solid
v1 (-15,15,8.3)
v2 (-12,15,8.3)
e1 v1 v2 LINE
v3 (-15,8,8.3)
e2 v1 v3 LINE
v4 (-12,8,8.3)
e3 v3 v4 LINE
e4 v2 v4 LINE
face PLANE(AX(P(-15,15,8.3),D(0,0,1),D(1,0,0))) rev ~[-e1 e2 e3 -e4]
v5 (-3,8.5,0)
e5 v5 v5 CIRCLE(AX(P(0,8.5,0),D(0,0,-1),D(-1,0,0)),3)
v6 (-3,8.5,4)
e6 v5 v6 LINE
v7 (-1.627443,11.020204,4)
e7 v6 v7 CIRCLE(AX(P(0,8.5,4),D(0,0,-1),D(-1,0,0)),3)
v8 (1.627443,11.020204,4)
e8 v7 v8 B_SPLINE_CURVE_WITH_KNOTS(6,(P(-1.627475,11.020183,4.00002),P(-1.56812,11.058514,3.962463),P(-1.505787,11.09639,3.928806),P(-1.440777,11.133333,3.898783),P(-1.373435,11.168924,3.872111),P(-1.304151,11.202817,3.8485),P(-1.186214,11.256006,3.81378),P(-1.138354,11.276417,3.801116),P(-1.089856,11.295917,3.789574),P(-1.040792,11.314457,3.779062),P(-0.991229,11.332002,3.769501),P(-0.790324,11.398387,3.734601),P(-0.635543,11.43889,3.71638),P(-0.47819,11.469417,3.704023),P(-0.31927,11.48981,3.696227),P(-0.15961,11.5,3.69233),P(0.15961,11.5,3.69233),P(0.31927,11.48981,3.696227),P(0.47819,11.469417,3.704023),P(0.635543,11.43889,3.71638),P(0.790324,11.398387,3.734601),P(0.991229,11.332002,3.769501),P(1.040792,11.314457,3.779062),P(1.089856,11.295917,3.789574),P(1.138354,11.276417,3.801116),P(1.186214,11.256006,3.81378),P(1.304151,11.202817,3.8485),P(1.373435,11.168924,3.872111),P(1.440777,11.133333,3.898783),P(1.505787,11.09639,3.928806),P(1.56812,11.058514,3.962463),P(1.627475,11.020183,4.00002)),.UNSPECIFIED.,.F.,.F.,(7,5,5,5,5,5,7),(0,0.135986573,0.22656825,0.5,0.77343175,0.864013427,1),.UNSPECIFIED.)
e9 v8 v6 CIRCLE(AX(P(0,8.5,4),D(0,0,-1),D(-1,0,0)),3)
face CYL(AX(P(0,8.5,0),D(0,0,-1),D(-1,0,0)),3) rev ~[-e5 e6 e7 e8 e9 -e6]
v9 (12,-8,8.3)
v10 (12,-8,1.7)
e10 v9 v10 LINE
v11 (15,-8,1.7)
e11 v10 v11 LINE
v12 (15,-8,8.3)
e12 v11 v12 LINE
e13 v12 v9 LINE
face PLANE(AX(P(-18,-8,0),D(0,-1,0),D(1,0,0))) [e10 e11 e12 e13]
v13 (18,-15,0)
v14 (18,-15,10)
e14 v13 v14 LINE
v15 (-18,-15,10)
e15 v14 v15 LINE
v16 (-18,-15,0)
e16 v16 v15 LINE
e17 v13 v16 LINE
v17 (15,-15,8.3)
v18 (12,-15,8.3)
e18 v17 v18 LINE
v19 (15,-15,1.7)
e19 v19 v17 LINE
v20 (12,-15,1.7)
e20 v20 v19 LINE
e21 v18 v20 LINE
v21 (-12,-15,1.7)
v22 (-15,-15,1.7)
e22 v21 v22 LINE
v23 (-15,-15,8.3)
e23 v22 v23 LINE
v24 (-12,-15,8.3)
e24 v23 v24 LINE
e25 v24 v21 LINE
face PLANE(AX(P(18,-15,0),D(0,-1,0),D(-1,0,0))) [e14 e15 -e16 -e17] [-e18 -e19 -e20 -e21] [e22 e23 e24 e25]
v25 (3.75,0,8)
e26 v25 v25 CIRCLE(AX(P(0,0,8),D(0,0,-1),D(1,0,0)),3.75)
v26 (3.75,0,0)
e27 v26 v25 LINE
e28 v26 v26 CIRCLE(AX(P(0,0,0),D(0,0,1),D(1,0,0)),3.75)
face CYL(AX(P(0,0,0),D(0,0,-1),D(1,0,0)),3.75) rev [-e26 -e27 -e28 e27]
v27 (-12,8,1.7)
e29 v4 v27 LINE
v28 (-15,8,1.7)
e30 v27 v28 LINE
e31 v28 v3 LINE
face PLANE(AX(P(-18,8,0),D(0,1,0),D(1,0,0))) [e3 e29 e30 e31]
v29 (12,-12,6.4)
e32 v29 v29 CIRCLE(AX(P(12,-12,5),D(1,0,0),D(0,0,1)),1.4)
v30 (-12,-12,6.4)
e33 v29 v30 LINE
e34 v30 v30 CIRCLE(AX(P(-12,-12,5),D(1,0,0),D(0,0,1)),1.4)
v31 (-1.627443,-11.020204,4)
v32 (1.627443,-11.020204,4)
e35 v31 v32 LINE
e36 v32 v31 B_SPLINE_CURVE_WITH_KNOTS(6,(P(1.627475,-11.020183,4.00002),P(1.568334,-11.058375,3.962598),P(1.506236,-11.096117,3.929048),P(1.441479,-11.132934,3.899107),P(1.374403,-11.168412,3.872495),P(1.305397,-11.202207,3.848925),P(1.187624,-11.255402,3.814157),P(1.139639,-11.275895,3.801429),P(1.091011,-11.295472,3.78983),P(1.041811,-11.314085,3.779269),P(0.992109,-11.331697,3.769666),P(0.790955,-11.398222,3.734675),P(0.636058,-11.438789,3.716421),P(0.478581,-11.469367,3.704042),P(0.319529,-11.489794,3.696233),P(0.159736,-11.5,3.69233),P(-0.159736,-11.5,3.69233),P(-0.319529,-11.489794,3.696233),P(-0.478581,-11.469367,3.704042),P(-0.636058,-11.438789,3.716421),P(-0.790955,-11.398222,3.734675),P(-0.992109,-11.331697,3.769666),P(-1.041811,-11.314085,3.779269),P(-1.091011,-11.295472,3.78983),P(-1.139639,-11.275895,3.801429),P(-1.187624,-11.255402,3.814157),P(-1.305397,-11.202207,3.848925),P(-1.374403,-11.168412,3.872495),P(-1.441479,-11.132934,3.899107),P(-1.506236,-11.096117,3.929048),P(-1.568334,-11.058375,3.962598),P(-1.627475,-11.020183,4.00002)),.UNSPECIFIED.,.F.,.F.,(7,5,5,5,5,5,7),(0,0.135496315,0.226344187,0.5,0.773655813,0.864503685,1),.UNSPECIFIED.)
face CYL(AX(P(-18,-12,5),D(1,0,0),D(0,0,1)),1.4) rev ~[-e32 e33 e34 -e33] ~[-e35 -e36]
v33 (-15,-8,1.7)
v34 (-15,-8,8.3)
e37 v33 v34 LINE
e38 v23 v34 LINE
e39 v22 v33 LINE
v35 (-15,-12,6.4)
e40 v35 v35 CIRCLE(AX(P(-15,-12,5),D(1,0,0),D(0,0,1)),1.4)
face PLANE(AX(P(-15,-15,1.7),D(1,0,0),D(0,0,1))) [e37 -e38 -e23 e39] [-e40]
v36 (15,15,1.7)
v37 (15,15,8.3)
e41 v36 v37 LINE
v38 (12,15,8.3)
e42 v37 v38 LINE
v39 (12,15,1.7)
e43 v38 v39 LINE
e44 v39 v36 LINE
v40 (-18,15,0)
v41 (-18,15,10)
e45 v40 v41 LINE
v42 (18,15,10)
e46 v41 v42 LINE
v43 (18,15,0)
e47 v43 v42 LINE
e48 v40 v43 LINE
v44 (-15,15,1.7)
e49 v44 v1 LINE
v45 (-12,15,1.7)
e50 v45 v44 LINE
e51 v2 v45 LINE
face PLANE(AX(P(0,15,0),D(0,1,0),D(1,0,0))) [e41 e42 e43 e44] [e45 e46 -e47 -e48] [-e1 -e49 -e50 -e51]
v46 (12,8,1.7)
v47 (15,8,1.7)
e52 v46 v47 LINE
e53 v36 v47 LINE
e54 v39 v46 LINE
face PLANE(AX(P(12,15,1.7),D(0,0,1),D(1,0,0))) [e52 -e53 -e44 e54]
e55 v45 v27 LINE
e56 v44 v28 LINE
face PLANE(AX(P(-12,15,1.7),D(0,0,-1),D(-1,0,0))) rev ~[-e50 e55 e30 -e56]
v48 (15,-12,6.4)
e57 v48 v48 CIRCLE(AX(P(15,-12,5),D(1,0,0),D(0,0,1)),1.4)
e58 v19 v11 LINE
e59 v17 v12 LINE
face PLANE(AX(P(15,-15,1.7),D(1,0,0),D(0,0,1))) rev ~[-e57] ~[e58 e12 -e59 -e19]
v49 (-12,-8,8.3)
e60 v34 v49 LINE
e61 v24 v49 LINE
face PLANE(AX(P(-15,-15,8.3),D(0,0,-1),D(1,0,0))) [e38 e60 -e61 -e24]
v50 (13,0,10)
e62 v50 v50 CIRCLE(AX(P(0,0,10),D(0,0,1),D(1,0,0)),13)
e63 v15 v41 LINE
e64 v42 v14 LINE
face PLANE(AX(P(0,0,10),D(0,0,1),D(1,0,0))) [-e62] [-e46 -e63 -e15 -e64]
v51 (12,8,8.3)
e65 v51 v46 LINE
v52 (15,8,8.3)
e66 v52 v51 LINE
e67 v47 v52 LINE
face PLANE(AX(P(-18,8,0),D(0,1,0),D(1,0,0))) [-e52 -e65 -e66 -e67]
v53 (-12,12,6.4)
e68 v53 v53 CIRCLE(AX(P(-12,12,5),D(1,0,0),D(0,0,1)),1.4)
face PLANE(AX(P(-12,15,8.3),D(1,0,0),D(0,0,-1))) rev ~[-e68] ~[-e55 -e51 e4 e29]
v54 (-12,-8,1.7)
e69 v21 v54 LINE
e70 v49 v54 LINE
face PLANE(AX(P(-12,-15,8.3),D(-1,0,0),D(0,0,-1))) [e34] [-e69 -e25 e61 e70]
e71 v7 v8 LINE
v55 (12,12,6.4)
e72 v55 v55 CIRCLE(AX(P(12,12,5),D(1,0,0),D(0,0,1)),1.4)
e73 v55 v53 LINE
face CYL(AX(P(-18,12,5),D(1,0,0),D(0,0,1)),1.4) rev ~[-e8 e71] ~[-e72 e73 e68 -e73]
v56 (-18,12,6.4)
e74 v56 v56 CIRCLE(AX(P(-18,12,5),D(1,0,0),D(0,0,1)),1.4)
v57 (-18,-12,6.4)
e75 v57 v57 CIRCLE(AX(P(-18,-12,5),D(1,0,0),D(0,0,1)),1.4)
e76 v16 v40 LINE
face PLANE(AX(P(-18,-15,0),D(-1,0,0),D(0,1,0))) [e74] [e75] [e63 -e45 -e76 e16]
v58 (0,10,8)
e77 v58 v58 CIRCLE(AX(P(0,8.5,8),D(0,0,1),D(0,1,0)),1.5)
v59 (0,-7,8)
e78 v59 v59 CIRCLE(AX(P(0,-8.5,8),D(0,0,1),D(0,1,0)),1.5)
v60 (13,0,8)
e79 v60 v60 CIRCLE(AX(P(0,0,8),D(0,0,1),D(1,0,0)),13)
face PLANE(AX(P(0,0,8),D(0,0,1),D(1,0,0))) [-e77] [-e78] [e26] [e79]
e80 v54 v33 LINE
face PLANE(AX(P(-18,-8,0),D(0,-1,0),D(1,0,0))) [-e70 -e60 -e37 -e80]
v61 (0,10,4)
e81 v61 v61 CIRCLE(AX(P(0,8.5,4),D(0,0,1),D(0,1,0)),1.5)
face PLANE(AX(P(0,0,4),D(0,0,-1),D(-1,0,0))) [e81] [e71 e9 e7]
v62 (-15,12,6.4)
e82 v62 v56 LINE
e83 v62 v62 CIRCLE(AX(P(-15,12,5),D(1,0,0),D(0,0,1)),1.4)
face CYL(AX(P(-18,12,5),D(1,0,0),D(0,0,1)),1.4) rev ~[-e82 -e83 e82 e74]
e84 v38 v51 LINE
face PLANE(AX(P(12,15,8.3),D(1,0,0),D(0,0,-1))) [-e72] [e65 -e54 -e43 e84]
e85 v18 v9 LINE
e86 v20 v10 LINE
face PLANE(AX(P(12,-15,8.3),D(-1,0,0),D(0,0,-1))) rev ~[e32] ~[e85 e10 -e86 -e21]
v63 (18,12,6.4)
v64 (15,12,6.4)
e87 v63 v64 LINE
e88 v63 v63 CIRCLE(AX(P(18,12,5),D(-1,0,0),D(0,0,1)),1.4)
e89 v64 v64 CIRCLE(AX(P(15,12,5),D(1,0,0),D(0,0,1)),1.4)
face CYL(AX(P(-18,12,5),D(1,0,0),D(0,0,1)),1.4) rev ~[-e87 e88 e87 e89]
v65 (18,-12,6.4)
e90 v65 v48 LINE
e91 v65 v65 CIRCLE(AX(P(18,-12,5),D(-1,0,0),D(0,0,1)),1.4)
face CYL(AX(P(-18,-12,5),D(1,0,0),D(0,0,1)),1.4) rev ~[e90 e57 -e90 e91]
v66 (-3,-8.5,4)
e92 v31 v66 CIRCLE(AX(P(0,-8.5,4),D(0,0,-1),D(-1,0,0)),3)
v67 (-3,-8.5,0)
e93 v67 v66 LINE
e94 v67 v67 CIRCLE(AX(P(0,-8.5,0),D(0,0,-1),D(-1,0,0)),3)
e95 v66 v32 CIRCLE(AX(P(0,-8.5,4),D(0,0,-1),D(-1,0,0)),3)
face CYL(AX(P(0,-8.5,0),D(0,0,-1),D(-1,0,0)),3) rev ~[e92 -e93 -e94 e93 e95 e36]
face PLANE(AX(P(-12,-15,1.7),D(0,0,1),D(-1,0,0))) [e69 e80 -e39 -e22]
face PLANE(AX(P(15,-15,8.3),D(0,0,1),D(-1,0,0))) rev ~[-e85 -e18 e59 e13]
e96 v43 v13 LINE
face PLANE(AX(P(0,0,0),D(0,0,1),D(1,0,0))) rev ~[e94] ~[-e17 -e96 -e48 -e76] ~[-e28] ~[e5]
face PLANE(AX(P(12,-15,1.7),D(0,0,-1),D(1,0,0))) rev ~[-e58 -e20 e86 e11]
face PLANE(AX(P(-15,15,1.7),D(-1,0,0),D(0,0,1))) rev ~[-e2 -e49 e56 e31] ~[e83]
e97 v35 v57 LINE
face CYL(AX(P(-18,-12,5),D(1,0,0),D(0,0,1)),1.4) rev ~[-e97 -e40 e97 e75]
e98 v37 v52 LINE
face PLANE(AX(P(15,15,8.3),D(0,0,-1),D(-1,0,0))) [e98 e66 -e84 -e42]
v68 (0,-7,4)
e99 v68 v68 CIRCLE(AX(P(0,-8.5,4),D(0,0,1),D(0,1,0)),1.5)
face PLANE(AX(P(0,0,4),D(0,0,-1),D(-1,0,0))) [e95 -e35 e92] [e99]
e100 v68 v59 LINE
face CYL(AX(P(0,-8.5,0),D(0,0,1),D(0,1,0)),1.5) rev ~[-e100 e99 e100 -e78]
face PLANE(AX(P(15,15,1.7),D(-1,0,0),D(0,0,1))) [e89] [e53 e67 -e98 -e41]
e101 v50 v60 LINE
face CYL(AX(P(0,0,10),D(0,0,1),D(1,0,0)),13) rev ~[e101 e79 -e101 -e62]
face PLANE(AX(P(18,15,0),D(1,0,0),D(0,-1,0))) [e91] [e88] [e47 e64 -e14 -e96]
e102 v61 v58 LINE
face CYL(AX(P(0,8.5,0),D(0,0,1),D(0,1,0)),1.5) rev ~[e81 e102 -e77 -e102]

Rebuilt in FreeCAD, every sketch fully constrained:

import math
import FreeCAD as App
import Part
import Sketcher
from FreeCAD import Vector


def add_polygon(sketch, points):
    """Adds a closed chain of lines whose ends are joined by coincident constraints."""
    first, n = sketch.GeometryCount, len(points)
    for a, b in zip(points, points[1:] + points[:1]):
        sketch.addGeometry(Part.LineSegment(App.Vector(*a, 0), App.Vector(*b, 0)), False)
    for i in range(n):
        sketch.addConstraint(Sketcher.Constraint("Coincident", first + i, 2, first + (i + 1) % n, 1))

doc = App.newDocument("Part")
body = doc.addObject("PartDesign::Body", "Body")

# Sketch on XY plane
sketch1 = body.newObject("Sketcher::SketchObject", "Sketch")
sketch1.AttachmentSupport = (doc.getObject("XY_Plane"), [""])
sketch1.MapMode = "FlatFace"
sketch1.addGeometry([
    Part.Circle(Vector(0, 0, 0), Vector(0, 0, 1), 15),
    Part.Circle(Vector(0, 0, 0), Vector(0, 0, 1), 3.8),
], False)
sketch1.addConstraint([
    Sketcher.Constraint("Coincident", 0, 3, -1, 1),
    Sketcher.Constraint("Coincident", 1, 3, -1, 1),
    Sketcher.Constraint("Diameter", 0, 30.0),
    Sketcher.Constraint("Diameter", 1, 7.5),
])
pad1 = body.newObject("PartDesign::Pad", "Pad")
pad1.Profile = sketch1
pad1.Length = 10

# Sketch on XY plane
sketch2 = body.newObject("Sketcher::SketchObject", "Sketch001")
sketch2.AttachmentSupport = (doc.getObject("XY_Plane"), [""])
sketch2.MapMode = "FlatFace"
sketch2.addGeometry([
    Part.Circle(Vector(0, 8.5, 0), Vector(0, 0, 1), 1.5),
    Part.Circle(Vector(0, -8.5, 0), Vector(0, 0, 1), 1.5),
], False)
sketch2.addConstraint([
    Sketcher.Constraint("Equal", 0, 1),
    Sketcher.Constraint("Symmetric", 0, 3, 1, 3, -1, 1),
    Sketcher.Constraint("PointOnObject", 0, 3, -2),
    Sketcher.Constraint("Diameter", 0, 3.0),
    Sketcher.Constraint("DistanceY", 1, 3, 0, 3, 17.0),
])
doc.recompute()
hole = body.newObject("PartDesign::Hole", "Hole")
hole.Profile = sketch2
hole.ThreadType = "None"
hole.Diameter = 3
hole.DepthType = "ThroughAll"
hole.Reversed = True

# Sketch on XY plane
sketch3 = body.newObject("Sketcher::SketchObject", "Sketch002")
sketch3.AttachmentSupport = (doc.getObject("XY_Plane"), [""])
sketch3.MapMode = "FlatFace"
sketch3.AttachmentOffset = App.Placement(Vector(0, 0, 10), App.Rotation())
sketch3.addGeometry(Part.Circle(Vector(0, 0, 0), Vector(0, 0, 1), 13), False)
sketch3.addConstraint([
    Sketcher.Constraint("Coincident", 0, 3, -1, 1),
    Sketcher.Constraint("Diameter", 0, 26.0),
])
pocket1 = body.newObject("PartDesign::Pocket", "Pocket")
pocket1.Profile = sketch3
pocket1.Length = 2

# Sketch on XY plane
sketch4 = body.newObject("Sketcher::SketchObject", "Sketch003")
sketch4.AttachmentSupport = (doc.getObject("XY_Plane"), [""])
sketch4.MapMode = "FlatFace"
sketch4.addGeometry([
    Part.ArcOfCircle(Part.Circle(Vector(0, 0, 0), Vector(0, 0, 1), 15), math.radians(-90), math.radians(90)),  # 0
    Part.LineSegment(Vector(0, -15, 0), Vector(18, -15, 0)),  # 1
    Part.LineSegment(Vector(18, -15, 0), Vector(18, 15, 0)),  # 2
    Part.LineSegment(Vector(18, 15, 0), Vector(0, 15, 0)),  # 3
    Part.ArcOfCircle(Part.Circle(Vector(0, 0, 0), Vector(0, 0, 1), 15), math.radians(90), math.radians(270)),  # 4
    Part.LineSegment(Vector(0, 15, 0), Vector(-18, 15, 0)),  # 5
    Part.LineSegment(Vector(-18, 15, 0), Vector(-18, -15, 0)),  # 6
    Part.LineSegment(Vector(-18, -15, 0), Vector(0, -15, 0)),  # 7
], False)
sketch4.addConstraint([
    Sketcher.Constraint("Tangent", 0, 1, 1, 1),
    Sketcher.Constraint("Coincident", 1, 2, 2, 1),
    Sketcher.Constraint("Coincident", 2, 2, 3, 1),
    Sketcher.Constraint("Tangent", 3, 2, 0, 2),
    Sketcher.Constraint("Tangent", 4, 1, 5, 1),
    Sketcher.Constraint("Coincident", 5, 2, 6, 1),
    Sketcher.Constraint("Coincident", 6, 2, 7, 1),
    Sketcher.Constraint("Tangent", 7, 2, 4, 2),
    Sketcher.Constraint("Horizontal", 1),
    Sketcher.Constraint("Vertical", 2),
    Sketcher.Constraint("Horizontal", 3),
    Sketcher.Constraint("Horizontal", 5),
    Sketcher.Constraint("Vertical", 6),
    Sketcher.Constraint("Horizontal", 7),
    Sketcher.Constraint("Coincident", 0, 3, -1, 1),
    Sketcher.Constraint("Coincident", 4, 3, -1, 1),
    Sketcher.Constraint("Equal", 0, 4),
    Sketcher.Constraint("Equal", 3, 5),
    Sketcher.Constraint("Radius", 0, 15.0),
    Sketcher.Constraint("DistanceX", 1, 1, 1, 2, 18.0),
])
pad2 = body.newObject("PartDesign::Pad", "Pad001")
pad2.Profile = sketch4
pad2.Length = 10

# Sketch on YZ plane
sketch5 = body.newObject("Sketcher::SketchObject", "Sketch004")
sketch5.AttachmentSupport = (doc.getObject("YZ_Plane"), [""])
sketch5.MapMode = "FlatFace"
sketch5.AttachmentOffset = App.Placement(Vector(0, 0, -18), App.Rotation())
sketch5.addGeometry([
    Part.Circle(Vector(12, 5, 0), Vector(0, 0, 1), 1.4),
    Part.Circle(Vector(-12, 5, 0), Vector(0, 0, 1), 1.4),
], False)
sketch5.addConstraint([
    Sketcher.Constraint("Equal", 0, 1),
    Sketcher.Constraint("Symmetric", 0, 3, 1, 3, -2),
    Sketcher.Constraint("Diameter", 0, 2.8),
    Sketcher.Constraint("DistanceX", -1, 1, 0, 3, 12.0),
    Sketcher.Constraint("DistanceY", -1, 1, 0, 3, 5.0),
])
doc.recompute()
hole2 = body.newObject("PartDesign::Hole", "Hole001")
hole2.Profile = sketch5
hole2.ThreadType = "None"
hole2.Diameter = 2.8
hole2.DepthType = "ThroughAll"
hole2.Reversed = True

# Sketch on YZ plane
sketch6 = body.newObject("Sketcher::SketchObject", "Sketch005")
sketch6.AttachmentSupport = (doc.getObject("YZ_Plane"), [""])
sketch6.MapMode = "FlatFace"
sketch6.AttachmentOffset = App.Placement(Vector(0, 0, 18), App.Rotation())
sketch6.addGeometry([
    Part.Circle(Vector(12, 5, 0), Vector(0, 0, 1), 1.4),
    Part.Circle(Vector(-12, 5, 0), Vector(0, 0, 1), 1.4),
], False)
sketch6.addConstraint([
    Sketcher.Constraint("Equal", 0, 1),
    Sketcher.Constraint("Symmetric", 0, 3, 1, 3, -2),
    Sketcher.Constraint("Diameter", 0, 2.8),
    Sketcher.Constraint("DistanceX", -1, 1, 0, 3, 12.0),
    Sketcher.Constraint("DistanceY", -1, 1, 0, 3, 5.0),
])
doc.recompute()
hole3 = body.newObject("PartDesign::Hole", "Hole002")
hole3.Profile = sketch6
hole3.ThreadType = "None"
hole3.Diameter = 2.8
hole3.DepthType = "Dimension"
hole3.Depth = 8
hole3.DrillPoint = "Flat"

# Sketch on XZ plane
sketch7 = body.newObject("Sketcher::SketchObject", "Sketch006")
sketch7.AttachmentSupport = (doc.getObject("XZ_Plane"), [""])
sketch7.MapMode = "FlatFace"
sketch7.AttachmentOffset = App.Placement(Vector(0, 0, 15), App.Rotation())
add_polygon(sketch7, [(-12, 8.3), (-15, 8.3), (-15, 1.7), (-12, 1.7)])  # lines 0-3
add_polygon(sketch7, [(15, 1.7), (15, 8.3), (12, 8.3), (12, 1.7)])  # lines 4-7
sketch7.addConstraint([
    Sketcher.Constraint("Horizontal", 0),
    Sketcher.Constraint("Vertical", 1),
    Sketcher.Constraint("Horizontal", 2),
    Sketcher.Constraint("Vertical", 3),
    Sketcher.Constraint("Vertical", 4),
    Sketcher.Constraint("Horizontal", 5),
    Sketcher.Constraint("Vertical", 6),
    Sketcher.Constraint("Horizontal", 7),
    Sketcher.Constraint("Symmetric", 0, 2, 4, 2, -2),
    Sketcher.Constraint("Symmetric", 2, 2, 6, 2, -2),
    Sketcher.Constraint("DistanceX", 0, 2, 0, 1, 3.0),
    Sketcher.Constraint("DistanceY", 1, 2, 1, 1, 6.6),
    Sketcher.Constraint("DistanceY", -1, 1, 1, 2, 1.7),
    Sketcher.Constraint("DistanceX", 0, 2, -1, 1, 15.0),
])
pocket2 = body.newObject("PartDesign::Pocket", "Pocket001")
pocket2.Profile = sketch7
pocket2.Length = 7

# Sketch on XZ plane
sketch8 = body.newObject("Sketcher::SketchObject", "Sketch007")
sketch8.AttachmentSupport = (doc.getObject("XZ_Plane"), [""])
sketch8.MapMode = "FlatFace"
sketch8.AttachmentOffset = App.Placement(Vector(0, 0, -15), App.Rotation())
add_polygon(sketch8, [(12, 8.3), (15, 8.3), (15, 1.7), (12, 1.7)])  # lines 0-3
add_polygon(sketch8, [(-15, 1.7), (-15, 8.3), (-12, 8.3), (-12, 1.7)])  # lines 4-7
sketch8.addConstraint([
    Sketcher.Constraint("Horizontal", 0),
    Sketcher.Constraint("Vertical", 1),
    Sketcher.Constraint("Horizontal", 2),
    Sketcher.Constraint("Vertical", 3),
    Sketcher.Constraint("Vertical", 4),
    Sketcher.Constraint("Horizontal", 5),
    Sketcher.Constraint("Vertical", 6),
    Sketcher.Constraint("Horizontal", 7),
    Sketcher.Constraint("Symmetric", 0, 2, 4, 2, -2),
    Sketcher.Constraint("Symmetric", 2, 2, 6, 2, -2),
    Sketcher.Constraint("DistanceX", 0, 1, 0, 2, 3.0),
    Sketcher.Constraint("DistanceY", 1, 2, 1, 1, 6.6),
    Sketcher.Constraint("DistanceY", -1, 1, 1, 2, 1.7),
    Sketcher.Constraint("DistanceX", -1, 1, 0, 2, 15.0),
])
pocket3 = body.newObject("PartDesign::Pocket", "Pocket002")
pocket3.Profile = sketch8
pocket3.Length = 7
pocket3.Reversed = True

# Sketch on XY plane
sketch9 = body.newObject("Sketcher::SketchObject", "Sketch008")
sketch9.AttachmentSupport = (doc.getObject("XY_Plane"), [""])
sketch9.MapMode = "FlatFace"
sketch9.addGeometry([
    Part.Circle(Vector(0, -8.5, 0), Vector(0, 0, 1), 3),
    Part.Circle(Vector(0, -8.5, 0), Vector(0, 0, 1), 1.5),
    Part.Circle(Vector(0, 8.5, 0), Vector(0, 0, 1), 3),
    Part.Circle(Vector(0, 8.5, 0), Vector(0, 0, 1), 1.5),
], False)
sketch9.addConstraint([
    Sketcher.Constraint("Coincident", 1, 3, 0, 3),
    Sketcher.Constraint("Coincident", 3, 3, 2, 3),
    Sketcher.Constraint("Equal", 0, 2),
    Sketcher.Constraint("Equal", 1, 3),
    Sketcher.Constraint("Symmetric", 0, 3, 2, 3, -1, 1),
    Sketcher.Constraint("PointOnObject", 0, 3, -2),
    Sketcher.Constraint("Diameter", 0, 6.0),
    Sketcher.Constraint("Diameter", 1, 3.0),
    Sketcher.Constraint("DistanceY", 0, 3, 2, 3, 17.0),
])
pocket4 = body.newObject("PartDesign::Pocket", "Pocket003")
pocket4.Profile = sketch9
pocket4.Length = 4
pocket4.Reversed = True

doc.recompute()
